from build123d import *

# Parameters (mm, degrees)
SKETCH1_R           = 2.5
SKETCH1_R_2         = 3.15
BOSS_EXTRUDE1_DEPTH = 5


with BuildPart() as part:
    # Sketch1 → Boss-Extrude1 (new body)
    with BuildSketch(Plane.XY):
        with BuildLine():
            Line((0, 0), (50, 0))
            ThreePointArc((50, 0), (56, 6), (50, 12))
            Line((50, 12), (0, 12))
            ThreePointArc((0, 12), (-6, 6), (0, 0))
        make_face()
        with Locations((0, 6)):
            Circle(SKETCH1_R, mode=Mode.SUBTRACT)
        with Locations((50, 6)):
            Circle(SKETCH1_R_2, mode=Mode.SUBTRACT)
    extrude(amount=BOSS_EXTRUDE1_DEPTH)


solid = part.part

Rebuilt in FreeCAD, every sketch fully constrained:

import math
import FreeCAD as App
import Part
import Sketcher

V = App.Vector
Q = App.Units.Quantity

doc = App.newDocument("Part")
body = doc.addObject("PartDesign::Body", "Body")

# Sketch on XY plane
sketch1 = body.newObject("Sketcher::SketchObject", "Sketch")
sketch1.AttachmentSupport = (doc.getObject("XY_Plane"), [""])
sketch1.MapMode = "FlatFace"
sketch1.addGeometry([
    Part.LineSegment(V(0, 0, 0), V(50, 0, 0)),  # 0
    Part.ArcOfCircle(Part.Circle(V(50, 6, 0), V(0, 0, 1), 6), math.radians(-90), math.radians(90)),  # 1
    Part.LineSegment(V(50, 12, 0), V(0, 12, 0)),  # 2
    Part.ArcOfCircle(Part.Circle(V(0, 6, 0), V(0, 0, 1), 6), math.radians(90), math.radians(270)),  # 3
    Part.Circle(V(0, 6, 0), V(0, 0, 1), 2.5),  # 4
    Part.Circle(V(50, 6, 0), V(0, 0, 1), 3.1),  # 5
], False)
sketch1.addConstraint([
    Sketcher.Constraint("Tangent", 0, 2, 1, 1),
    Sketcher.Constraint("Tangent", 1, 2, 2, 1),
    Sketcher.Constraint("Tangent", 2, 2, 3, 1),
    Sketcher.Constraint("Tangent", 3, 2, 0, 1),
    Sketcher.Constraint("Horizontal", 0),
    Sketcher.Constraint("Horizontal", 2),
    Sketcher.Constraint("Coincident", 3, 2, -1, 1),
    Sketcher.Constraint("Coincident", 4, 3, 3, 3),
    Sketcher.Constraint("Coincident", 5, 3, 1, 3),
    Sketcher.Constraint("Diameter", 4, Q("5 mm")),
    Sketcher.Constraint("Radius", 1, Q("6 mm")),
    Sketcher.Constraint("Diameter", 5, Q("6.3 mm")),
    Sketcher.Constraint("DistanceX", 0, 1, 0, 2, Q("50 mm")),
])
pad1 = body.newObject("PartDesign::Pad", "Pad")
pad1.Profile = sketch1
pad1.Length = 5

doc.recompute()
